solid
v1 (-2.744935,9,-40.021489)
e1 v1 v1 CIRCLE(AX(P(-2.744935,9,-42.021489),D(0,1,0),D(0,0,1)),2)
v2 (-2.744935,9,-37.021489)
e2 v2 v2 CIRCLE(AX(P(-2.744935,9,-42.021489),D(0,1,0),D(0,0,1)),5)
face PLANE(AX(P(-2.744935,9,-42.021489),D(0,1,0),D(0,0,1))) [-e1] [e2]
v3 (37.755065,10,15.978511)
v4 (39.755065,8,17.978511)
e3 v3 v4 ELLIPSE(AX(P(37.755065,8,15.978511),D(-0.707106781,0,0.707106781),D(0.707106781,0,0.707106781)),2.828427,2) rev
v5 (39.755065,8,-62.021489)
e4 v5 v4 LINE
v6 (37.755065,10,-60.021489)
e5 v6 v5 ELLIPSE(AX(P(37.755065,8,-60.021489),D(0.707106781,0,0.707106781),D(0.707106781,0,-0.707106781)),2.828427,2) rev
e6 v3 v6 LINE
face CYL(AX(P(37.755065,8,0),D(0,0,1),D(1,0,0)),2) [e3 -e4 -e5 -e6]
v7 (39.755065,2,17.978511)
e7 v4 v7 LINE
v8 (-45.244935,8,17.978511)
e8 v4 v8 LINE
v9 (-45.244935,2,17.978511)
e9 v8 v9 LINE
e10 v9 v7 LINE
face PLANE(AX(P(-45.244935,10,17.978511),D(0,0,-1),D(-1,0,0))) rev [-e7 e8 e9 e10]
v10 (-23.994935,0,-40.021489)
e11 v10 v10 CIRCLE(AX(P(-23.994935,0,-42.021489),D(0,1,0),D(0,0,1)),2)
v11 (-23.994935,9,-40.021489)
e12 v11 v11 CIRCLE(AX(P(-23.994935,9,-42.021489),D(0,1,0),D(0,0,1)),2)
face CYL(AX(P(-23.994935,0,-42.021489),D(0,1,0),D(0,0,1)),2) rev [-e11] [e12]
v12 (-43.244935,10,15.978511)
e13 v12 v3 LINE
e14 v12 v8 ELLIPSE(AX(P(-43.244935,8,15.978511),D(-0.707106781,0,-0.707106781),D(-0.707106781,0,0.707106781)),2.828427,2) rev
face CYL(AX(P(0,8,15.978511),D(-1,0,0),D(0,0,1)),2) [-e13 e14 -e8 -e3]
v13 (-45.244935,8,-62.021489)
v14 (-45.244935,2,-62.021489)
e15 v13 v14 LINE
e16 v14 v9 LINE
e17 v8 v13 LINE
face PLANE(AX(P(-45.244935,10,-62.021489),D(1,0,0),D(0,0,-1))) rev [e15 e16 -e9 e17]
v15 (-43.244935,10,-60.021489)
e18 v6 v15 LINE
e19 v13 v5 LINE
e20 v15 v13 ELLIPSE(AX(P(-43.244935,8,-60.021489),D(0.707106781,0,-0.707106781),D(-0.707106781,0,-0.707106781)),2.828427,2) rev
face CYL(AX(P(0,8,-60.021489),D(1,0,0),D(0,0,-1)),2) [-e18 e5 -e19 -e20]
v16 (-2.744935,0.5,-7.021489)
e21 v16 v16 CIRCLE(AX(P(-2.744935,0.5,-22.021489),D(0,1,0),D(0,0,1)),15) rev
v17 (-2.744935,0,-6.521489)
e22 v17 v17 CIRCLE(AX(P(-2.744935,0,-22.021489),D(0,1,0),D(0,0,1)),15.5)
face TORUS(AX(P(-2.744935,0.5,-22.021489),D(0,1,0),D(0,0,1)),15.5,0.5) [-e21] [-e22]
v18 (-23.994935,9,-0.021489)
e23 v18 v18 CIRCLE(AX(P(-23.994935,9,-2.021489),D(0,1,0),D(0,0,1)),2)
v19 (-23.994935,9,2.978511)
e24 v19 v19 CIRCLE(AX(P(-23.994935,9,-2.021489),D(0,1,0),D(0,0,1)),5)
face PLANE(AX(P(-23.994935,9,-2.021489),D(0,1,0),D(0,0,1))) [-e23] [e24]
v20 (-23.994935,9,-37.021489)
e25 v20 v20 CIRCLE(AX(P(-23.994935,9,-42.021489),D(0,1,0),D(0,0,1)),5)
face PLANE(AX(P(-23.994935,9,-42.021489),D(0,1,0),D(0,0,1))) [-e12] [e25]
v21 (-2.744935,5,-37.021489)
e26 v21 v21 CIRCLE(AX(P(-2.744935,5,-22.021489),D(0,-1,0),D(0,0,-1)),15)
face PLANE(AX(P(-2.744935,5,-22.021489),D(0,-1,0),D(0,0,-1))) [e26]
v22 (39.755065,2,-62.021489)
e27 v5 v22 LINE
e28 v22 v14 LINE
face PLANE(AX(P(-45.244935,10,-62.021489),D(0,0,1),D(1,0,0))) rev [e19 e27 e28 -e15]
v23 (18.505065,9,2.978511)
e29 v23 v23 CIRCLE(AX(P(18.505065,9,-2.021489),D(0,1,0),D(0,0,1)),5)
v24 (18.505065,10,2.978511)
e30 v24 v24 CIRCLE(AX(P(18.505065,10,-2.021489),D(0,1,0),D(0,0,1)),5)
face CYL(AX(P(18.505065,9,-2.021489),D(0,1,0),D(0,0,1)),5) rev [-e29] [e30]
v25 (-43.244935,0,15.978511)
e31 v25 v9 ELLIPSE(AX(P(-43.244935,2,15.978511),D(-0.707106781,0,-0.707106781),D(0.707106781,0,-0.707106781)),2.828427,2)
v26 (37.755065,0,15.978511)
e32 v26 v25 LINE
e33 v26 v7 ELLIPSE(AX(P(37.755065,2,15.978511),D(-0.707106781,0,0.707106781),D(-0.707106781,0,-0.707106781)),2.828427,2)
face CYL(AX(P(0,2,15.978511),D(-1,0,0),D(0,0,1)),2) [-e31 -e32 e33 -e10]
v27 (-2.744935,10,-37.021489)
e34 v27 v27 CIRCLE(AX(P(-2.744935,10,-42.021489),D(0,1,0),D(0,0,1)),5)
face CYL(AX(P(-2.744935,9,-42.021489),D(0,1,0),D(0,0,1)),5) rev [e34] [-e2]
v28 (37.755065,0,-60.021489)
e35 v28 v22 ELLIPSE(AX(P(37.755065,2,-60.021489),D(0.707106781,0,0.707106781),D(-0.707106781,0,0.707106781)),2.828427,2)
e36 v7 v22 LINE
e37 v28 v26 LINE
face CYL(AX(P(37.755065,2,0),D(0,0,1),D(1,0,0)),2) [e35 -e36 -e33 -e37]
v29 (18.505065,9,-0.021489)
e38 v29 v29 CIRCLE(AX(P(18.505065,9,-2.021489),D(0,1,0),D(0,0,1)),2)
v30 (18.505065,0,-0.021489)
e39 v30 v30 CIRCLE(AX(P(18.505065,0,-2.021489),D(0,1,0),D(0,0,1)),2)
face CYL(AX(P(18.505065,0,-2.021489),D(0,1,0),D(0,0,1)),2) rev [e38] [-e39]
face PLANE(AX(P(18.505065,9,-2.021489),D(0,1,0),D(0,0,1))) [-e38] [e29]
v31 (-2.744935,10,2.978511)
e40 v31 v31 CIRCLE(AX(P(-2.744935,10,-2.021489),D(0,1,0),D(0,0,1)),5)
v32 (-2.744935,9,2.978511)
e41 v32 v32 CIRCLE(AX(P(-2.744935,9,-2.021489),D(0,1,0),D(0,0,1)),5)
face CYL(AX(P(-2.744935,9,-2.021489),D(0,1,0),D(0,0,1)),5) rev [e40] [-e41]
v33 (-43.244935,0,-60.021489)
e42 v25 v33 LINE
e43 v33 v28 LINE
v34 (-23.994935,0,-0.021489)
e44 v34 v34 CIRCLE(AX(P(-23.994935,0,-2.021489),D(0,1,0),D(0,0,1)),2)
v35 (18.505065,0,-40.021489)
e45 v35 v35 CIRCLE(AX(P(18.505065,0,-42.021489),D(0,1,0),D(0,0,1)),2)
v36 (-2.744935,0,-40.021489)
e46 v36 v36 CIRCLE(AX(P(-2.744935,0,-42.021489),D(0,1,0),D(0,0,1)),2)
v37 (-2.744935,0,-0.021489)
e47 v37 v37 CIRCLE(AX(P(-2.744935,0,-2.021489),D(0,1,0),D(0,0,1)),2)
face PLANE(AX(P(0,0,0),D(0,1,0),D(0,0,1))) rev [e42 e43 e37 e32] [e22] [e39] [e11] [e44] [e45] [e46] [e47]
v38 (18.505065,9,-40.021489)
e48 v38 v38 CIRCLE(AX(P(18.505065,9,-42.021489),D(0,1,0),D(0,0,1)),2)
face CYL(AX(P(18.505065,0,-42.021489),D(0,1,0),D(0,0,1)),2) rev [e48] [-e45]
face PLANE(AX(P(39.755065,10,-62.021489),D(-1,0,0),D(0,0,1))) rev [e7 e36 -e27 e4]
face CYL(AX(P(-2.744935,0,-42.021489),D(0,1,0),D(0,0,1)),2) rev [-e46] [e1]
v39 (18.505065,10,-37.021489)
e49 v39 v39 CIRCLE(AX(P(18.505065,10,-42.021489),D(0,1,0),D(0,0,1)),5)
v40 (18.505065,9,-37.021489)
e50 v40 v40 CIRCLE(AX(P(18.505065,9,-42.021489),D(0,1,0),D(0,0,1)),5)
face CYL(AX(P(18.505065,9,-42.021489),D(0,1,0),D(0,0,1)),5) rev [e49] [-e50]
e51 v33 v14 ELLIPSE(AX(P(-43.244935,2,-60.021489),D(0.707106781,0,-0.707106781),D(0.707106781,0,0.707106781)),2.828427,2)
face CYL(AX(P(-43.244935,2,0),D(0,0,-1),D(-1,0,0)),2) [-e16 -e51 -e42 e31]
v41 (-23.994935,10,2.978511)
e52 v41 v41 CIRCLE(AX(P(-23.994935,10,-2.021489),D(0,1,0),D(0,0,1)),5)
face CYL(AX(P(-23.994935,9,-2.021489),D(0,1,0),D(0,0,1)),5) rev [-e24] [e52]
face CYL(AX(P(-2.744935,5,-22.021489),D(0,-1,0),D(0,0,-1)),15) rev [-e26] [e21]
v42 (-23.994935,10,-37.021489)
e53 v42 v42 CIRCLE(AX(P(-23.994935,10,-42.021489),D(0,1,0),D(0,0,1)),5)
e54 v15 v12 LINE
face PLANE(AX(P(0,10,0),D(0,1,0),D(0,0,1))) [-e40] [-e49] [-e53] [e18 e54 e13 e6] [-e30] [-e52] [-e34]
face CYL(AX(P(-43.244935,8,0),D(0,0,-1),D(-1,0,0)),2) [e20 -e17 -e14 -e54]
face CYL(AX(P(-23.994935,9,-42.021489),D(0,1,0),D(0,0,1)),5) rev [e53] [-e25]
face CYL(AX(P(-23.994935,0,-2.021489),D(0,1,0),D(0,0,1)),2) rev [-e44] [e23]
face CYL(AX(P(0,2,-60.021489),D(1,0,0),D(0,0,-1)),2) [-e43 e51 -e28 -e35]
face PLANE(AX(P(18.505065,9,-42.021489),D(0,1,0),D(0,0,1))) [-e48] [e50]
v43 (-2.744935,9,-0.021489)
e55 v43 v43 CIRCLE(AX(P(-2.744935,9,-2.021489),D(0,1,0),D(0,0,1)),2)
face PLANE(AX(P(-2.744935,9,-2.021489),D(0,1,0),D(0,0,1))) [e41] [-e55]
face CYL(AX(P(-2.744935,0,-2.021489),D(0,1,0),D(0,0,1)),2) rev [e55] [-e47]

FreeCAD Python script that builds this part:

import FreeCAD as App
import Part
import Sketcher

V = App.Vector


def edges_at(feature, points):
    """Names of the edges that pass closest to the given points."""
    edges = feature.Shape.Edges
    near = lambda p: min(range(len(edges)), key=lambda i: edges[i].distToShape(Part.Vertex(*p))[0])
    return sorted({f"Edge{near(p) + 1}" for p in points})

doc = App.newDocument("Part")
params = doc.addObject("Spreadsheet::Sheet", "Params")
for row, (alias, value) in enumerate([
    ("sketch1_width", "85 mm"),
    ("sketch1_height", "80 mm"),
    ("pad1_length", "10 mm"),
    ("sketch2_diameter", "10 mm"),
    ("sketch2_diameter2", "4 mm"),
    ("pocket1_length", "1 mm"),
    ("sketch3_diameter", "4 mm"),
    ("sketch4_diameter", "30 mm"),
    ("pocket3_length", "5 mm"),
    ("fillet_radius", "0.5 mm"),
    ("fillet2_radius", "2 mm"),
    ("fillet3_radius", "2 mm"),
], start=1):
    params.set(f"A{row}", alias)
    params.set(f"B{row}", "=" + value)
    params.setAlias(f"B{row}", alias)

body = doc.addObject("PartDesign::Body", "Body")

sketch1 = body.newObject("Sketcher::SketchObject", "Sketch")
sketch1.AttachmentSupport = (doc.getObject("XZ_Plane"), [""])
sketch1.MapMode = "FlatFace"
sketch1.addGeometry([
    Part.LineSegment(V(-45, -62, 0), V(-45, 18, 0)),
    Part.LineSegment(V(-45, 18, 0), V(40, 18, 0)),
    Part.LineSegment(V(40, 18, 0), V(40, -62, 0)),
    Part.LineSegment(V(40, -62, 0), V(-45, -62, 0)),
], False)
sketch1.addConstraint([
    Sketcher.Constraint("Coincident", 0, 2, 1, 1),
    Sketcher.Constraint("Coincident", 1, 2, 2, 1),
    Sketcher.Constraint("Coincident", 2, 2, 3, 1),
    Sketcher.Constraint("Coincident", 3, 2, 0, 1),
    Sketcher.Constraint("Vertical", 0),
    Sketcher.Constraint("Horizontal", 1),
    Sketcher.Constraint("Vertical", 2),
    Sketcher.Constraint("Horizontal", 3),
    Sketcher.Constraint("DistanceX", 1, 1, 1, 2, 85.0),
    Sketcher.Constraint("DistanceY", 0, 1, 0, 2, 80.0),
    Sketcher.Constraint("DistanceY", -1, 1, 0, 2, 17.978511),
    Sketcher.Constraint("DistanceX", 0, 2, -1, 1, 45.244935),
])
sketch1.setExpression("Constraints[8]", "Params.sketch1_width")
sketch1.setExpression("Constraints[9]", "Params.sketch1_height")
pad1 = body.newObject("PartDesign::Pad", "Pad")
pad1.Profile = sketch1
pad1.setExpression("Length", "Params.pad1_length")
pad1.Reversed = True

sketch2 = body.newObject("Sketcher::SketchObject", "Sketch001")
sketch2.AttachmentSupport = (doc.getObject("XZ_Plane"), [""])
sketch2.MapMode = "FlatFace"
sketch2.AttachmentOffset = App.Placement(V(0, 0, -10), App.Rotation())
sketch2.addGeometry([
    Part.Circle(V(-2.7, -42, 0), V(0, 0, 1), 5),
    Part.Circle(V(-2.7, -42, 0), V(0, 0, 1), 2),
    Part.Circle(V(-2.7, -2, 0), V(0, 0, 1), 5),
    Part.Circle(V(-2.7, -2, 0), V(0, 0, 1), 2),
    Part.Circle(V(-24, -2, 0), V(0, 0, 1), 5),
    Part.Circle(V(-24, -2, 0), V(0, 0, 1), 2),
    Part.Circle(V(18.5, -2, 0), V(0, 0, 1), 5),
    Part.Circle(V(18.5, -2, 0), V(0, 0, 1), 2),
    Part.Circle(V(18.5, -42, 0), V(0, 0, 1), 5),
    Part.Circle(V(18.5, -42, 0), V(0, 0, 1), 2),
    Part.Circle(V(-24, -42, 0), V(0, 0, 1), 5),
    Part.Circle(V(-24, -42, 0), V(0, 0, 1), 2),
], False)
sketch2.addConstraint([
    Sketcher.Constraint("Coincident", 1, 3, 0, 3),
    Sketcher.Constraint("Coincident", 3, 3, 2, 3),
    Sketcher.Constraint("Coincident", 5, 3, 4, 3),
    Sketcher.Constraint("Coincident", 7, 3, 6, 3),
    Sketcher.Constraint("Coincident", 9, 3, 8, 3),
    Sketcher.Constraint("Coincident", 11, 3, 10, 3),
    Sketcher.Constraint("Equal", 0, 2),
    Sketcher.Constraint("Equal", 1, 3),
    Sketcher.Constraint("Equal", 2, 4),
    Sketcher.Constraint("Equal", 3, 5),
    Sketcher.Constraint("Equal", 4, 6),
    Sketcher.Constraint("Equal", 5, 7),
    Sketcher.Constraint("Equal", 6, 8),
    Sketcher.Constraint("Equal", 7, 9),
    Sketcher.Constraint("Equal", 8, 10),
    Sketcher.Constraint("Equal", 9, 11),
    Sketcher.Constraint("Horizontal", 3, 3, 4, 3),
    Sketcher.Constraint("Horizontal", 5, 3, 6, 3),
    Sketcher.Constraint("Horizontal", 1, 3, 8, 3),
    Sketcher.Constraint("Horizontal", 9, 3, 10, 3),
    Sketcher.Constraint("Vertical", 1, 3, 2, 3),
    Sketcher.Constraint("Vertical", 7, 3, 8, 3),
    Sketcher.Constraint("Vertical", 5, 3, 10, 3),
    Sketcher.Constraint("Diameter", 0, 10.0),
    Sketcher.Constraint("Diameter", 1, 4.0),
    Sketcher.Constraint("DistanceY", 0, 3, 2, 3, 40.0),
    Sketcher.Constraint("DistanceX", 4, 3, 6, 3, 42.5),
    Sketcher.Constraint("DistanceX", 4, 3, 2, 3, 21.25),
    Sketcher.Constraint("DistanceY", 0, 3, -1, 1, 42.021489),
    Sketcher.Constraint("DistanceX", 0, 3, -1, 1, 2.744935),
])
sketch2.setExpression("Constraints[23]", "Params.sketch2_diameter")
sketch2.setExpression("Constraints[24]", "Params.sketch2_diameter2")
pocket1 = body.newObject("PartDesign::Pocket", "Pocket")
pocket1.Profile = sketch2
pocket1.setExpression("Length", "Params.pocket1_length")
pocket1.Reversed = True

sketch3 = body.newObject("Sketcher::SketchObject", "Sketch002")
sketch3.AttachmentSupport = (doc.getObject("XZ_Plane"), [""])
sketch3.MapMode = "FlatFace"
sketch3.AttachmentOffset = App.Placement(V(0, 0, -10), App.Rotation())
sketch3.addGeometry([
    Part.Circle(V(18.5, -42, 0), V(0, 0, 1), 2),
    Part.Circle(V(-2.7, -42, 0), V(0, 0, 1), 2),
    Part.Circle(V(-24, -42, 0), V(0, 0, 1), 2),
    Part.Circle(V(-24, -2, 0), V(0, 0, 1), 2),
    Part.Circle(V(-2.7, -2, 0), V(0, 0, 1), 2),
    Part.Circle(V(18.5, -2, 0), V(0, 0, 1), 2),
], False)
sketch3.addConstraint([
    Sketcher.Constraint("Equal", 0, 1),
    Sketcher.Constraint("Equal", 1, 2),
    Sketcher.Constraint("Equal", 2, 3),
    Sketcher.Constraint("Equal", 3, 4),
    Sketcher.Constraint("Equal", 4, 5),
    Sketcher.Constraint("Horizontal", 0, 3, 1, 3),
    Sketcher.Constraint("Horizontal", 1, 3, 2, 3),
    Sketcher.Constraint("Horizontal", 3, 3, 4, 3),
    Sketcher.Constraint("Horizontal", 4, 3, 5, 3),
    Sketcher.Constraint("Vertical", 2, 3, 3, 3),
    Sketcher.Constraint("Vertical", 1, 3, 4, 3),
    Sketcher.Constraint("Vertical", 0, 3, 5, 3),
    Sketcher.Constraint("Diameter", 0, 4.0),
    Sketcher.Constraint("DistanceY", 2, 3, 3, 3, 40.0),
    Sketcher.Constraint("DistanceX", 2, 3, 0, 3, 42.5),
    Sketcher.Constraint("DistanceX", 1, 3, 0, 3, 21.25),
    Sketcher.Constraint("DistanceY", 0, 3, -1, 1, 42.021489),
    Sketcher.Constraint("DistanceX", -1, 1, 0, 3, 18.505065),
])
sketch3.setExpression("Constraints[12]", "Params.sketch3_diameter")
pocket2 = body.newObject("PartDesign::Pocket", "Pocket001")
pocket2.Profile = sketch3
pocket2.Type = "ThroughAll"
pocket2.Reversed = True

sketch4 = body.newObject("Sketcher::SketchObject", "Sketch003")
sketch4.AttachmentSupport = (doc.getObject("XZ_Plane"), [""])
sketch4.MapMode = "FlatFace"
sketch4.addGeometry(Part.Circle(V(-3, -22, 0), V(0, 0, 1), 15), False)
sketch4.addConstraint([
    Sketcher.Constraint("Diameter", 0, 30.0),
    Sketcher.Constraint("DistanceY", 0, 3, -1, 1, 22.021489),
    Sketcher.Constraint("DistanceX", 0, 3, -1, 1, 2.744935),
])
sketch4.setExpression("Constraints[0]", "Params.sketch4_diameter")
pocket3 = body.newObject("PartDesign::Pocket", "Pocket002")
pocket3.Profile = sketch4
pocket3.setExpression("Length", "Params.pocket3_length")
doc.recompute()

fillet = body.newObject("PartDesign::Fillet", "Fillet")
fillet.Base = (pocket3, edges_at(pocket3, [(-2.745, 0, -7.021)]))
fillet.setExpression("Radius", "Params.fillet_radius")
doc.recompute()

fillet2 = body.newObject("PartDesign::Fillet", "Fillet001")
fillet2.Base = (fillet, edges_at(fillet, [
    (-2.745, 0, -62.021),
    (39.755, 0, -22.021),
    (-2.745, 0, 17.979),
    (-45.245, 0, -22.021),
]))
fillet2.setExpression("Radius", "Params.fillet2_radius")
doc.recompute()

fillet3 = body.newObject("PartDesign::Fillet", "Fillet002")
fillet3.Base = (fillet2, edges_at(fillet2, [
    (39.755, 10, -22.021),
    (-2.745, 10, -62.021),
    (-45.245, 10, -22.021),
    (-2.745, 10, 17.979),
]))
fillet3.setExpression("Radius", "Params.fillet3_radius")

doc.recompute()
